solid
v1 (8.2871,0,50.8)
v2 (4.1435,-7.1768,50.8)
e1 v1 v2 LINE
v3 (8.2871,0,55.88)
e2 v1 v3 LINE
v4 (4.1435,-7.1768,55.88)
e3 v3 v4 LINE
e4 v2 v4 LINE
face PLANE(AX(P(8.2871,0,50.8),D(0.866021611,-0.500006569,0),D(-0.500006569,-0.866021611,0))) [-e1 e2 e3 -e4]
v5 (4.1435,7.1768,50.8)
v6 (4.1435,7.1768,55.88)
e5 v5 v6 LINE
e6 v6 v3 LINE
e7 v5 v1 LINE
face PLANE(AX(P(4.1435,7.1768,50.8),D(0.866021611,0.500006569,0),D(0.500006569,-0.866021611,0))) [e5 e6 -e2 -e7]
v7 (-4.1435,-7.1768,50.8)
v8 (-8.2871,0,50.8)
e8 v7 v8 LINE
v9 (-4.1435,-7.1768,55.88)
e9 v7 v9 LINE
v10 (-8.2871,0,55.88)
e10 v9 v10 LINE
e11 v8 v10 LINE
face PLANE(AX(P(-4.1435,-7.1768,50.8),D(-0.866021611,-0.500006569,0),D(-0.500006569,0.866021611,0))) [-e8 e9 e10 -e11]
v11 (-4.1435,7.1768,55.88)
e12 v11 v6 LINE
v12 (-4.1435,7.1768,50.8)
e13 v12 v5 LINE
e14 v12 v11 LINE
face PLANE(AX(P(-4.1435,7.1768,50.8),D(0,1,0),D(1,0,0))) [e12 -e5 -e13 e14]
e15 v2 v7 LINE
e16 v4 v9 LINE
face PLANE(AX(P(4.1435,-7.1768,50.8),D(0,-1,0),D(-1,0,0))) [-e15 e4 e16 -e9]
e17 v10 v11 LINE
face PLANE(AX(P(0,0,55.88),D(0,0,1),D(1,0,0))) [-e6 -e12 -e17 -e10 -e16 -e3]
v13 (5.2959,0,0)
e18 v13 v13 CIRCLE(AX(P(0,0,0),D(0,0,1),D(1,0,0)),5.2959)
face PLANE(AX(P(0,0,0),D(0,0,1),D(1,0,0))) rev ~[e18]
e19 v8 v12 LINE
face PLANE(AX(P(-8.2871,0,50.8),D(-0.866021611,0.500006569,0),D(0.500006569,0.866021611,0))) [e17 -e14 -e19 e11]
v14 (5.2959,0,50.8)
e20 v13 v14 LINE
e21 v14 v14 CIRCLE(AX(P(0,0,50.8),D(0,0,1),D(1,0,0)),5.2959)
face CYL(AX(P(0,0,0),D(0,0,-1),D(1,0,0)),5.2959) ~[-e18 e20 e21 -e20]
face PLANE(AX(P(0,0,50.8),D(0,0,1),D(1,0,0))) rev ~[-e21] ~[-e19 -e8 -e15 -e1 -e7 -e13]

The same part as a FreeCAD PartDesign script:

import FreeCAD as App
import Part
import Sketcher

V = App.Vector
Q = App.Units.Quantity

doc = App.newDocument("Part")
body = doc.addObject("PartDesign::Body", "Body")

sketch1 = body.newObject("Sketcher::SketchObject", "Sketch")
sketch1.AttachmentSupport = (doc.getObject("XY_Plane"), [""])
sketch1.MapMode = "FlatFace"
sketch1.addGeometry(Part.Circle(V(0, 0, 0), V(0, 0, 1), 5), False)
sketch1.addConstraint([
    Sketcher.Constraint("Coincident", 0, 3, -1, 1),
    Sketcher.Constraint("Diameter", 0, Q("0.417 in")),
])
pad1 = body.newObject("PartDesign::Pad", "Pad")
pad1.Profile = sketch1
pad1.Length = Q("2 in")

sketch2 = body.newObject("Sketcher::SketchObject", "Sketch001")
sketch2.AttachmentSupport = (doc.getObject("XY_Plane"), [""])
sketch2.MapMode = "FlatFace"
sketch2.AttachmentOffset = App.Placement(V(0, 0, 2 * 25.4), App.Rotation())
sketch2.addGeometry([
    Part.LineSegment(V(4, -7, 0), V(8, 0, 0)),
    Part.LineSegment(V(8, 0, 0), V(4, 7, 0)),
    Part.LineSegment(V(4, 7, 0), V(-4, 7, 0)),
    Part.LineSegment(V(-4, 7, 0), V(-8, 0, 0)),
    Part.LineSegment(V(-8, 0, 0), V(-4, -7, 0)),
    Part.LineSegment(V(-4, -7, 0), V(4, -7, 0)),
], False)
sketch2.addConstraint([
    Sketcher.Constraint("Coincident", 0, 2, 1, 1),
    Sketcher.Constraint("Coincident", 1, 2, 2, 1),
    Sketcher.Constraint("Coincident", 2, 2, 3, 1),
    Sketcher.Constraint("Coincident", 3, 2, 4, 1),
    Sketcher.Constraint("Coincident", 4, 2, 5, 1),
    Sketcher.Constraint("Coincident", 5, 2, 0, 1),
    Sketcher.Constraint("Horizontal", 2),
    Sketcher.Constraint("Horizontal", 5),
    Sketcher.Constraint("Symmetric", 0, 2, 3, 2, -1, 1),
    Sketcher.Constraint("Symmetric", 1, 2, 4, 2, -1, 1),
    Sketcher.Constraint("PointOnObject", 0, 2, -1),
    Sketcher.Constraint("Parallel", 0, 3),
    Sketcher.Constraint("Vertical", 2, 2, 4, 2),
    Sketcher.Constraint("Angle", 0, Q("59.9996 deg")),
    Sketcher.Constraint("DistanceX", 2, 2, 2, 1, Q("8.287 mm")),
    Sketcher.Constraint("DistanceX", 2, 2, 0, 2, Q("0.4894 in")),
])
pad2 = body.newObject("PartDesign::Pad", "Pad001")
pad2.Profile = sketch2
pad2.Length = Q("0.2 in")

doc.recompute()
